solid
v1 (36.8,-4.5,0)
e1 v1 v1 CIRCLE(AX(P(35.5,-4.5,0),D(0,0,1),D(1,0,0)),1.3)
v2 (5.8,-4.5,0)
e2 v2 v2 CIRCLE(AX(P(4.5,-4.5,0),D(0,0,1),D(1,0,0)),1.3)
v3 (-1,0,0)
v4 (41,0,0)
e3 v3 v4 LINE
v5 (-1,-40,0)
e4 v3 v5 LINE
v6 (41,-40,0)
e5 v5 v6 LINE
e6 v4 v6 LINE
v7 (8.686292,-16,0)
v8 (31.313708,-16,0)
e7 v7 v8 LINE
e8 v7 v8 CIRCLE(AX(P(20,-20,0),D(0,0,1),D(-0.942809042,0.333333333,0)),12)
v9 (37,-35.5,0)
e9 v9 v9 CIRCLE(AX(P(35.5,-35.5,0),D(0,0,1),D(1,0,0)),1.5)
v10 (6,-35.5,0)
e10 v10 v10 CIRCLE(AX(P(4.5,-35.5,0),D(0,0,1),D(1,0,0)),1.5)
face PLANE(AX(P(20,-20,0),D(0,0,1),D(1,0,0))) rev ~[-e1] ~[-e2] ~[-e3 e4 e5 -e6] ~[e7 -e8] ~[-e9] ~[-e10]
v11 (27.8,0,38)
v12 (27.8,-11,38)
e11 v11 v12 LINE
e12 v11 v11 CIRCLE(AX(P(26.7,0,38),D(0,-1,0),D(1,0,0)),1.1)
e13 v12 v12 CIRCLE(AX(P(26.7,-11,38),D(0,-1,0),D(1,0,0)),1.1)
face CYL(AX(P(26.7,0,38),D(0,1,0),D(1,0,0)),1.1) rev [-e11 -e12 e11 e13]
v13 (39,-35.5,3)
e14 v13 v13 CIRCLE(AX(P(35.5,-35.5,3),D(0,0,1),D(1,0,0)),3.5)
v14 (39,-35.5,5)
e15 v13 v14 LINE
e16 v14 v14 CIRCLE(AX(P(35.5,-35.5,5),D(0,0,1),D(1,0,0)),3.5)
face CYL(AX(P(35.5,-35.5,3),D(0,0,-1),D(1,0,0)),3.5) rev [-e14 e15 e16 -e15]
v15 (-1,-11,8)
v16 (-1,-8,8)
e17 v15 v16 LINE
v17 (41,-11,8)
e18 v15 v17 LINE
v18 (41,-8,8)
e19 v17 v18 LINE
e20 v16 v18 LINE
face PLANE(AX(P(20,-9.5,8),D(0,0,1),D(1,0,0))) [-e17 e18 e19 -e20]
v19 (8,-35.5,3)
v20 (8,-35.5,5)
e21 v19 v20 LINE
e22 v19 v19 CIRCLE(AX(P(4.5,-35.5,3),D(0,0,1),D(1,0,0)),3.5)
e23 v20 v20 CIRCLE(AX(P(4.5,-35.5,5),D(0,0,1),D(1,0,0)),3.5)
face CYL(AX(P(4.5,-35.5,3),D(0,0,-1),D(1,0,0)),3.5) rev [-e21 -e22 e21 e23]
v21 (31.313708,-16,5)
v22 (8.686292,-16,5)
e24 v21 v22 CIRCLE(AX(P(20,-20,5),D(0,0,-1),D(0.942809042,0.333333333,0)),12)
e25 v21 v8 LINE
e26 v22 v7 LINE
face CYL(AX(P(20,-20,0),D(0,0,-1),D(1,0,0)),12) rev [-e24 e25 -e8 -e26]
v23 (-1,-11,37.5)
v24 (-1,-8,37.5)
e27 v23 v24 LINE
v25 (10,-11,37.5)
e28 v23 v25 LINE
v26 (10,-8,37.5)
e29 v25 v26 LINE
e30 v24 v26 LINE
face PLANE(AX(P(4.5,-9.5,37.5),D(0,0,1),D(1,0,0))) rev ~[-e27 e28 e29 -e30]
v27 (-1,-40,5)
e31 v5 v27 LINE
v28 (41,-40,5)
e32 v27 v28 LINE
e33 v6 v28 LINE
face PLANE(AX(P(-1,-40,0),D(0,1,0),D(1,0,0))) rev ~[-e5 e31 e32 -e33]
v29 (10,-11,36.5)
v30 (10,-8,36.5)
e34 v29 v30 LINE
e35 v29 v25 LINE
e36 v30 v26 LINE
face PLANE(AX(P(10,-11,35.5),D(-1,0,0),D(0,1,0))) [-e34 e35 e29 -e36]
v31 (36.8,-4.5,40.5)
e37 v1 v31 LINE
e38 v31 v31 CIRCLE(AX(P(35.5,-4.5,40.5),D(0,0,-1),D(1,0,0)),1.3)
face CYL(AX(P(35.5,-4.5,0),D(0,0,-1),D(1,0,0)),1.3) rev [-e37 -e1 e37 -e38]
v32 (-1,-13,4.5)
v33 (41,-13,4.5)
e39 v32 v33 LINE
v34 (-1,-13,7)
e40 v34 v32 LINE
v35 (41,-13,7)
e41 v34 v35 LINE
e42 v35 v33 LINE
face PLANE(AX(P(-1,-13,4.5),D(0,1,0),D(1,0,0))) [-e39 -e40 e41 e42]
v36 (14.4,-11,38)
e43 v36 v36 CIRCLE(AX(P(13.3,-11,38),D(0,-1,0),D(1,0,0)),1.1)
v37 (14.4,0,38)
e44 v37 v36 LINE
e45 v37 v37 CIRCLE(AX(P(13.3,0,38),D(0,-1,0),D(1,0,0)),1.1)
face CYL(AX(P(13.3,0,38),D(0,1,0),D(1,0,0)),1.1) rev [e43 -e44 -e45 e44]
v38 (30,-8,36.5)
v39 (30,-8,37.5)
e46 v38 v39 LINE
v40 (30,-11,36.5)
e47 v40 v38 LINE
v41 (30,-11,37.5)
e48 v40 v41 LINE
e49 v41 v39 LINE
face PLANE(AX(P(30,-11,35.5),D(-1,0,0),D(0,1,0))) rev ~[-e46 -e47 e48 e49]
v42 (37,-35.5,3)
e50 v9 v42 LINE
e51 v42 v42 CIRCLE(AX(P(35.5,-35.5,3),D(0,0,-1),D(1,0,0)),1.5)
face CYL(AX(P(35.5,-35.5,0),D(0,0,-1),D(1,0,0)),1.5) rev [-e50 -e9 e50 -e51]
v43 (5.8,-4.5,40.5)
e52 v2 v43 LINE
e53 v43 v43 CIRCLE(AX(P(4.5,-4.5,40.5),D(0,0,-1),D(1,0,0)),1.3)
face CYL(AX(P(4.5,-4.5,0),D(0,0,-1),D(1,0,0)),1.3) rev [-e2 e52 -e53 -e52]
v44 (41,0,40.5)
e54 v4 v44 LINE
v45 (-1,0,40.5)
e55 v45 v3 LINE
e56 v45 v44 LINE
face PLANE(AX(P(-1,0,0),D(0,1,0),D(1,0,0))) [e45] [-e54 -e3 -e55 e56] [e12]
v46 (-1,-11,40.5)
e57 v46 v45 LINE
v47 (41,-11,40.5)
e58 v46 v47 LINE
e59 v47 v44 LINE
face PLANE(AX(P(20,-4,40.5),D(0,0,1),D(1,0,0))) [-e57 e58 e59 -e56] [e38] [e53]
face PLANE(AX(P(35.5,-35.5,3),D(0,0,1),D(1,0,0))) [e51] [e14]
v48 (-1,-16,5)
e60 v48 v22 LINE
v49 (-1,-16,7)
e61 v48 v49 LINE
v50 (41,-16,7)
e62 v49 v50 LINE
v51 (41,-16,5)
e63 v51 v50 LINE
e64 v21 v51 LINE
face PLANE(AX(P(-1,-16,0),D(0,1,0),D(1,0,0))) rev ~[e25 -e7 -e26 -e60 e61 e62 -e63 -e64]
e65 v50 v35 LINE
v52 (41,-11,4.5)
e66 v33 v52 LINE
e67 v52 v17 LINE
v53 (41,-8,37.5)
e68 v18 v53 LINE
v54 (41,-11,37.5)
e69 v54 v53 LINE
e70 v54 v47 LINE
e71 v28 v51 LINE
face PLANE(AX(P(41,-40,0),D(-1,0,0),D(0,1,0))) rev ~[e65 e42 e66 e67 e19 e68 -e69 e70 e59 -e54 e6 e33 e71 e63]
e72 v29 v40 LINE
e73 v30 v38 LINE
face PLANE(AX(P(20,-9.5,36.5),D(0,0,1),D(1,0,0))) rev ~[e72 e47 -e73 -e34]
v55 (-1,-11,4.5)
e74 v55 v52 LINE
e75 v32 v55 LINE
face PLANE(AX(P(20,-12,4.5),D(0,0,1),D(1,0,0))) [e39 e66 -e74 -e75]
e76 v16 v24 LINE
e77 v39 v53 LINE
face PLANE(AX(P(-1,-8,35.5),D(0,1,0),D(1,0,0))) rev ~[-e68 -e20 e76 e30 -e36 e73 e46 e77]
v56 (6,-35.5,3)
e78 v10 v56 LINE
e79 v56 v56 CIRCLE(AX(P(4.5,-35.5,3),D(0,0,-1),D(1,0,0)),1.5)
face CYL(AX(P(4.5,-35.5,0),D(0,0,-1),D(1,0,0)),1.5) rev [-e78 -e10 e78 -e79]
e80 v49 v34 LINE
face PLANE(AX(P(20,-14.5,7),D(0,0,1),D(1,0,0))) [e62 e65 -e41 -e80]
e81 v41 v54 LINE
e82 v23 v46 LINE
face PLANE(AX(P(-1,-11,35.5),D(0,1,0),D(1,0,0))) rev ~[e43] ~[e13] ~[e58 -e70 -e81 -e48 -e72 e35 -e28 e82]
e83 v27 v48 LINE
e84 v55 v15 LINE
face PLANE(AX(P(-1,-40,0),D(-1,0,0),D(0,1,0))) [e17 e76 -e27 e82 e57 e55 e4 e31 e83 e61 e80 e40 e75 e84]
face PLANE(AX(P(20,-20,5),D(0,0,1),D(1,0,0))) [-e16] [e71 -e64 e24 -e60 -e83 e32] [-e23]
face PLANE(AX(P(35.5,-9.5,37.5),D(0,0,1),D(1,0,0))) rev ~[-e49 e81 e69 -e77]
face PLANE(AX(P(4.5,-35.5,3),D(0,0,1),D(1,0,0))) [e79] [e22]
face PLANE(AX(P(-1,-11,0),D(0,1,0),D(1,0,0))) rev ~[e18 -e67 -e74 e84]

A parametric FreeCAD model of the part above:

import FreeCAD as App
import Part
import Sketcher

V = App.Vector
Q = App.Units.Quantity


def add_polygon(sketch, points):
    """Adds a closed chain of lines whose ends are joined by coincident constraints."""
    first, n = sketch.GeometryCount, len(points)
    for a, b in zip(points, points[1:] + points[:1]):
        sketch.addGeometry(Part.LineSegment(App.Vector(*a, 0), App.Vector(*b, 0)), False)
    for i in range(n):
        sketch.addConstraint(Sketcher.Constraint("Coincident", first + i, 2, first + (i + 1) % n, 1))

doc = App.newDocument("Part")
body = doc.addObject("PartDesign::Body", "Body")

sketch1 = body.newObject("Sketcher::SketchObject", "Sketch")
sketch1.AttachmentSupport = (doc.getObject("XY_Plane"), [""])
sketch1.MapMode = "FlatFace"
sketch1.addGeometry(Part.Circle(V(35.5, -4.5, 0), V(0, 0, 1), 1.3), False)
sketch1.addConstraint(Sketcher.Constraint("Diameter", 0, Q("2.6 mm")))
sketch1.addConstraint(Sketcher.Constraint("DistanceX", -1, 1, 0, 3, Q("35.5 mm")))
sketch1.addConstraint(Sketcher.Constraint("DistanceY", 0, 3, -1, 1, Q("4.5 mm")))
pad1 = body.newObject("PartDesign::Pad", "Pad")
pad1.Profile = sketch1
pad1.Length = 50
body2 = doc.addObject("PartDesign::Body", "Body001")

sketch2 = body2.newObject("Sketcher::SketchObject", "Sketch001")
sketch2.AttachmentSupport = (doc.getObject("XZ_Plane001"), [""])
sketch2.MapMode = "FlatFace"
sketch2.addGeometry(Part.Circle(V(13.3, 38, 0), V(0, 0, 1), 1.1), False)
sketch2.addConstraint(Sketcher.Constraint("Diameter", 0, Q("2.2 mm")))
sketch2.addConstraint(Sketcher.Constraint("DistanceY", -1, 1, 0, 3, Q("38 mm")))
sketch2.addConstraint(Sketcher.Constraint("DistanceX", -1, 1, 0, 3, Q("13.3 mm")))
pad2 = body2.newObject("PartDesign::Pad", "Pad001")
pad2.Profile = sketch2
pad2.Length = 11
body3 = doc.addObject("PartDesign::Body", "Body002")

sketch3 = body3.newObject("Sketcher::SketchObject", "Sketch002")
sketch3.AttachmentSupport = (doc.getObject("XZ_Plane002"), [""])
sketch3.MapMode = "FlatFace"
sketch3.addGeometry(Part.Circle(V(26.7, 38, 0), V(0, 0, 1), 1.1), False)
sketch3.addConstraint(Sketcher.Constraint("Diameter", 0, Q("2.2 mm")))
sketch3.addConstraint(Sketcher.Constraint("DistanceY", -1, 1, 0, 3, Q("38 mm")))
sketch3.addConstraint(Sketcher.Constraint("DistanceX", -1, 1, 0, 3, Q("26.7 mm")))
pad3 = body3.newObject("PartDesign::Pad", "Pad002")
pad3.Profile = sketch3
pad3.Length = 11
body4 = doc.addObject("PartDesign::Body", "Body003")

sketch4 = body4.newObject("Sketcher::SketchObject", "Sketch003")
sketch4.AttachmentSupport = (doc.getObject("XY_Plane003"), [""])
sketch4.MapMode = "FlatFace"
sketch4.AttachmentOffset = App.Placement(V(0, 0, 3), App.Rotation())
sketch4.addGeometry(Part.Circle(V(4.5, -35.5, 0), V(0, 0, 1), 3.5), False)
sketch4.addConstraint(Sketcher.Constraint("Diameter", 0, Q("7 mm")))
sketch4.addConstraint(Sketcher.Constraint("DistanceX", -1, 1, 0, 3, Q("4.5 mm")))
sketch4.addConstraint(Sketcher.Constraint("DistanceY", 0, 3, -1, 1, Q("35.5 mm")))
pad4 = body4.newObject("PartDesign::Pad", "Pad003")
pad4.Profile = sketch4
pad4.Length = 2
body5 = doc.addObject("PartDesign::Body", "Body004")

sketch5 = body5.newObject("Sketcher::SketchObject", "Sketch004")
sketch5.AttachmentSupport = (doc.getObject("XY_Plane004"), [""])
sketch5.MapMode = "FlatFace"
sketch5.AttachmentOffset = App.Placement(V(0, 0, 3), App.Rotation())
sketch5.addGeometry(Part.Circle(V(35.5, -35.5, 0), V(0, 0, 1), 3.5), False)
sketch5.addConstraint(Sketcher.Constraint("Diameter", 0, Q("7 mm")))
sketch5.addConstraint(Sketcher.Constraint("DistanceX", -1, 1, 0, 3, Q("35.5 mm")))
sketch5.addConstraint(Sketcher.Constraint("DistanceY", 0, 3, -1, 1, Q("35.5 mm")))
pad5 = body5.newObject("PartDesign::Pad", "Pad004")
pad5.Profile = sketch5
pad5.Length = 2
body6 = doc.addObject("PartDesign::Body", "Body005")

sketch6 = body6.newObject("Sketcher::SketchObject", "Sketch005")
sketch6.AttachmentSupport = (doc.getObject("XY_Plane005"), [""])
sketch6.MapMode = "FlatFace"
sketch6.addGeometry(Part.Circle(V(35.5, -35.5, 0), V(0, 0, 1), 1.5), False)
sketch6.addConstraint(Sketcher.Constraint("Diameter", 0, Q("3 mm")))
sketch6.addConstraint(Sketcher.Constraint("DistanceX", -1, 1, 0, 3, Q("35.5 mm")))
sketch6.addConstraint(Sketcher.Constraint("DistanceY", 0, 3, -1, 1, Q("35.5 mm")))
pad6 = body6.newObject("PartDesign::Pad", "Pad005")
pad6.Profile = sketch6
pad6.Length = 5
body7 = doc.addObject("PartDesign::Body", "Body006")

sketch7 = body7.newObject("Sketcher::SketchObject", "Sketch006")
sketch7.AttachmentSupport = (doc.getObject("XY_Plane006"), [""])
sketch7.MapMode = "FlatFace"
sketch7.addGeometry(Part.Circle(V(4.5, -35.5, 0), V(0, 0, 1), 1.5), False)
sketch7.addConstraint(Sketcher.Constraint("Diameter", 0, Q("3 mm")))
sketch7.addConstraint(Sketcher.Constraint("DistanceX", -1, 1, 0, 3, Q("4.5 mm")))
sketch7.addConstraint(Sketcher.Constraint("DistanceY", 0, 3, -1, 1, Q("35.5 mm")))
pad7 = body7.newObject("PartDesign::Pad", "Pad006")
pad7.Profile = sketch7
pad7.Length = 5
body8 = doc.addObject("PartDesign::Body", "Body007")
body8.AllowCompound = True

sketch8 = body8.newObject("Sketcher::SketchObject", "Sketch007")
sketch8.AttachmentSupport = (doc.getObject("XY_Plane007"), [""])
sketch8.MapMode = "FlatFace"
sketch8.addGeometry(Part.Circle(V(4.5, -4.5, 0), V(0, 0, 1), 1.3), False)
sketch8.addConstraint(Sketcher.Constraint("Diameter", 0, Q("2.6 mm")))
sketch8.addConstraint(Sketcher.Constraint("DistanceX", -1, 1, 0, 3, Q("4.5 mm")))
sketch8.addConstraint(Sketcher.Constraint("DistanceY", 0, 3, -1, 1, Q("4.5 mm")))
pad8 = body8.newObject("PartDesign::Pad", "Pad007")
pad8.Profile = sketch8
pad8.Length = 50
doc.recompute()

boolean = body8.newObject("PartDesign::Boolean", "Boolean")
boolean.Type = "Fuse"
boolean.addObjects([body])
doc.recompute()

boolean2 = body8.newObject("PartDesign::Boolean", "Boolean001")
boolean2.Type = "Fuse"
boolean2.addObjects([body2])
doc.recompute()

boolean3 = body8.newObject("PartDesign::Boolean", "Boolean002")
boolean3.Type = "Fuse"
boolean3.addObjects([body3])
doc.recompute()

boolean4 = body8.newObject("PartDesign::Boolean", "Boolean003")
boolean4.Type = "Fuse"
boolean4.addObjects([body4])
doc.recompute()

boolean5 = body8.newObject("PartDesign::Boolean", "Boolean004")
boolean5.Type = "Fuse"
boolean5.addObjects([body5])
doc.recompute()

boolean6 = body8.newObject("PartDesign::Boolean", "Boolean005")
boolean6.Type = "Fuse"
boolean6.addObjects([body6])
doc.recompute()

boolean7 = body8.newObject("PartDesign::Boolean", "Boolean006")
boolean7.Type = "Fuse"
boolean7.addObjects([body7])
body9 = doc.addObject("PartDesign::Body", "Body008")

sketch9 = body9.newObject("Sketcher::SketchObject", "Sketch008")
sketch9.AttachmentSupport = (doc.getObject("XY_Plane008"), [""])
sketch9.MapMode = "FlatFace"
sketch9.AttachmentOffset = App.Placement(V(0, 0, 35.5), App.Rotation())
add_polygon(sketch9, [(10, -8), (10, -11), (30, -11), (30, -8)])
sketch9.addConstraint(Sketcher.Constraint("Vertical", 0))
sketch9.addConstraint(Sketcher.Constraint("Horizontal", 1))
sketch9.addConstraint(Sketcher.Constraint("Vertical", 2))
sketch9.addConstraint(Sketcher.Constraint("Horizontal", 3))
sketch9.addConstraint(Sketcher.Constraint("DistanceX", 1, 1, 1, 2, Q("20 mm")))
sketch9.addConstraint(Sketcher.Constraint("DistanceY", 0, 2, 0, 1, Q("3 mm")))
sketch9.addConstraint(Sketcher.Constraint("DistanceX", -1, 1, 0, 2, Q("10 mm")))
sketch9.addConstraint(Sketcher.Constraint("DistanceY", 0, 2, -1, 1, Q("11 mm")))
pad9 = body9.newObject("PartDesign::Pad", "Pad008")
pad9.Profile = sketch9
pad9.Length = 1
body10 = doc.addObject("PartDesign::Body", "Body009")

sketch10 = body10.newObject("Sketcher::SketchObject", "Sketch009")
sketch10.AttachmentSupport = (doc.getObject("XY_Plane009"), [""])
sketch10.MapMode = "FlatFace"
sketch10.AttachmentOffset = App.Placement(V(0, 0, 35.5), App.Rotation())
add_polygon(sketch10, [(30, -8), (30, -11), (41, -11), (41, -8)])
sketch10.addConstraint(Sketcher.Constraint("Vertical", 0))
sketch10.addConstraint(Sketcher.Constraint("Horizontal", 1))
sketch10.addConstraint(Sketcher.Constraint("Vertical", 2))
sketch10.addConstraint(Sketcher.Constraint("Horizontal", 3))
sketch10.addConstraint(Sketcher.Constraint("DistanceX", 1, 1, 1, 2, Q("11 mm")))
sketch10.addConstraint(Sketcher.Constraint("DistanceY", 0, 2, 0, 1, Q("3 mm")))
sketch10.addConstraint(Sketcher.Constraint("DistanceX", -1, 1, 0, 2, Q("30 mm")))
sketch10.addConstraint(Sketcher.Constraint("DistanceY", 0, 2, -1, 1, Q("11 mm")))
pad10 = body10.newObject("PartDesign::Pad", "Pad009")
pad10.Profile = sketch10
pad10.Length = 2
body11 = doc.addObject("PartDesign::Body", "Body010")

sketch11 = body11.newObject("Sketcher::SketchObject", "Sketch010")
sketch11.AttachmentSupport = (doc.getObject("XY_Plane010"), [""])
sketch11.MapMode = "FlatFace"
sketch11.AttachmentOffset = App.Placement(V(0, 0, 35.5), App.Rotation())
add_polygon(sketch11, [(-1, -8), (-1, -11), (10, -11), (10, -8)])
sketch11.addConstraint(Sketcher.Constraint("Vertical", 0))
sketch11.addConstraint(Sketcher.Constraint("Horizontal", 1))
sketch11.addConstraint(Sketcher.Constraint("Vertical", 2))
sketch11.addConstraint(Sketcher.Constraint("Horizontal", 3))
sketch11.addConstraint(Sketcher.Constraint("DistanceX", 1, 1, 1, 2, Q("11 mm")))
sketch11.addConstraint(Sketcher.Constraint("DistanceY", 0, 2, 0, 1, Q("3 mm")))
sketch11.addConstraint(Sketcher.Constraint("DistanceX", 0, 2, -1, 1, Q("1 mm")))
sketch11.addConstraint(Sketcher.Constraint("DistanceY", 0, 2, -1, 1, Q("11 mm")))
pad11 = body11.newObject("PartDesign::Pad", "Pad010")
pad11.Profile = sketch11
pad11.Length = 2
body12 = doc.addObject("PartDesign::Body", "Body011")
body12.AllowCompound = True

sketch12 = body12.newObject("Sketcher::SketchObject", "Sketch011")
sketch12.AttachmentSupport = (doc.getObject("XY_Plane011"), [""])
sketch12.MapMode = "FlatFace"
sketch12.AttachmentOffset = App.Placement(V(0, 0, 4.5), App.Rotation())
add_polygon(sketch12, [(-1, -11), (-1, -13), (41, -13), (41, -11)])
sketch12.addConstraint(Sketcher.Constraint("Vertical", 0))
sketch12.addConstraint(Sketcher.Constraint("Horizontal", 1))
sketch12.addConstraint(Sketcher.Constraint("Vertical", 2))
sketch12.addConstraint(Sketcher.Constraint("Horizontal", 3))
sketch12.addConstraint(Sketcher.Constraint("DistanceX", 1, 1, 1, 2, Q("42 mm")))
sketch12.addConstraint(Sketcher.Constraint("DistanceY", 0, 2, 0, 1, Q("2 mm")))
sketch12.addConstraint(Sketcher.Constraint("DistanceX", 0, 2, -1, 1, Q("1 mm")))
sketch12.addConstraint(Sketcher.Constraint("DistanceY", 0, 2, -1, 1, Q("13 mm")))
pad12 = body12.newObject("PartDesign::Pad", "Pad011")
pad12.Profile = sketch12
pad12.Length = 2
doc.recompute()

boolean8 = body12.newObject("PartDesign::Boolean", "Boolean007")
boolean8.Type = "Fuse"
boolean8.addObjects([body9])
doc.recompute()

boolean9 = body12.newObject("PartDesign::Boolean", "Boolean008")
boolean9.Type = "Fuse"
boolean9.addObjects([body10])
doc.recompute()

boolean10 = body12.newObject("PartDesign::Boolean", "Boolean009")
boolean10.Type = "Fuse"
boolean10.addObjects([body11])
body13 = doc.addObject("PartDesign::Body", "Body012")

sketch13 = body13.newObject("Sketcher::SketchObject", "Sketch012")
sketch13.AttachmentSupport = (doc.getObject("XY_Plane012"), [""])
sketch13.MapMode = "FlatFace"
add_polygon(sketch13, [(-1, 0), (-1, -16), (41, -16), (41, 0)])
sketch13.addConstraint(Sketcher.Constraint("Vertical", 0))
sketch13.addConstraint(Sketcher.Constraint("Horizontal", 1))
sketch13.addConstraint(Sketcher.Constraint("Vertical", 2))
sketch13.addConstraint(Sketcher.Constraint("Horizontal", 3))
sketch13.addConstraint(Sketcher.Constraint("PointOnObject", 2, 2, -1))
sketch13.addConstraint(Sketcher.Constraint("DistanceX", 1, 1, 1, 2, Q("42 mm")))
sketch13.addConstraint(Sketcher.Constraint("DistanceY", 0, 2, 0, 1, Q("16 mm")))
sketch13.addConstraint(Sketcher.Constraint("DistanceX", 0, 2, -1, 1, Q("1 mm")))
pad13 = body13.newObject("PartDesign::Pad", "Pad012")
pad13.Profile = sketch13
pad13.Length = 5
body14 = doc.addObject("PartDesign::Body", "Body013")

sketch14 = body14.newObject("Sketcher::SketchObject", "Sketch013")
sketch14.AttachmentSupport = (doc.getObject("XY_Plane013"), [""])
sketch14.MapMode = "FlatFace"
sketch14.addGeometry(Part.Circle(V(20, -20, 0), V(0, 0, 1), 12), False)
sketch14.addConstraint(Sketcher.Constraint("Diameter", 0, Q("24 mm")))
sketch14.addConstraint(Sketcher.Constraint("DistanceX", -1, 1, 0, 3, Q("20 mm")))
sketch14.addConstraint(Sketcher.Constraint("DistanceY", 0, 3, -1, 1, Q("20 mm")))
pad14 = body14.newObject("PartDesign::Pad", "Pad013")
pad14.Profile = sketch14
pad14.Length = 5
doc.recompute()

boolean11 = body14.newObject("PartDesign::Boolean", "Boolean010")
boolean11.Type = "Cut"
boolean11.addObjects([body13])
body15 = doc.addObject("PartDesign::Body", "Body014")

sketch15 = body15.newObject("Sketcher::SketchObject", "Sketch014")
sketch15.AttachmentSupport = (doc.getObject("XY_Plane014"), [""])
sketch15.MapMode = "FlatFace"
add_polygon(sketch15, [(-1, 0), (-1, -8), (41, -8), (41, 0)])
sketch15.addConstraint(Sketcher.Constraint("Vertical", 0))
sketch15.addConstraint(Sketcher.Constraint("Horizontal", 1))
sketch15.addConstraint(Sketcher.Constraint("Vertical", 2))
sketch15.addConstraint(Sketcher.Constraint("Horizontal", 3))
sketch15.addConstraint(Sketcher.Constraint("PointOnObject", 2, 2, -1))
sketch15.addConstraint(Sketcher.Constraint("DistanceX", 1, 1, 1, 2, Q("42 mm")))
sketch15.addConstraint(Sketcher.Constraint("DistanceY", 0, 2, 0, 1, Q("8 mm")))
sketch15.addConstraint(Sketcher.Constraint("DistanceX", 0, 2, -1, 1, Q("1 mm")))
pad15 = body15.newObject("PartDesign::Pad", "Pad014")
pad15.Profile = sketch15
pad15.Length = 40.5
body16 = doc.addObject("PartDesign::Body", "Body015")

sketch16 = body16.newObject("Sketcher::SketchObject", "Sketch015")
sketch16.AttachmentSupport = (doc.getObject("XY_Plane015"), [""])
sketch16.MapMode = "FlatFace"
add_polygon(sketch16, [(-1, -13), (-1, -16), (41, -16), (41, -13)])
sketch16.addConstraint(Sketcher.Constraint("Vertical", 0))
sketch16.addConstraint(Sketcher.Constraint("Horizontal", 1))
sketch16.addConstraint(Sketcher.Constraint("Vertical", 2))
sketch16.addConstraint(Sketcher.Constraint("Horizontal", 3))
sketch16.addConstraint(Sketcher.Constraint("DistanceX", 1, 1, 1, 2, Q("42 mm")))
sketch16.addConstraint(Sketcher.Constraint("DistanceY", 0, 2, 0, 1, Q("3 mm")))
sketch16.addConstraint(Sketcher.Constraint("DistanceX", 0, 2, -1, 1, Q("1 mm")))
sketch16.addConstraint(Sketcher.Constraint("DistanceY", 0, 2, -1, 1, Q("16 mm")))
pad16 = body16.newObject("PartDesign::Pad", "Pad015")
pad16.Profile = sketch16
pad16.Length = 7
body17 = doc.addObject("PartDesign::Body", "Body016")

sketch17 = body17.newObject("Sketcher::SketchObject", "Sketch016")
sketch17.AttachmentSupport = (doc.getObject("XY_Plane016"), [""])
sketch17.MapMode = "FlatFace"
add_polygon(sketch17, [(-1, -8), (-1, -11), (41, -11), (41, -8)])
sketch17.addConstraint(Sketcher.Constraint("Vertical", 0))
sketch17.addConstraint(Sketcher.Constraint("Horizontal", 1))
sketch17.addConstraint(Sketcher.Constraint("Vertical", 2))
sketch17.addConstraint(Sketcher.Constraint("Horizontal", 3))
sketch17.addConstraint(Sketcher.Constraint("DistanceX", 1, 1, 1, 2, Q("42 mm")))
sketch17.addConstraint(Sketcher.Constraint("DistanceY", 0, 2, 0, 1, Q("3 mm")))
sketch17.addConstraint(Sketcher.Constraint("DistanceX", 0, 2, -1, 1, Q("1 mm")))
sketch17.addConstraint(Sketcher.Constraint("DistanceY", 0, 2, -1, 1, Q("11 mm")))
pad17 = body17.newObject("PartDesign::Pad", "Pad016")
pad17.Profile = sketch17
pad17.Length = 8
body18 = doc.addObject("PartDesign::Body", "Body017")

sketch18 = body18.newObject("Sketcher::SketchObject", "Sketch017")
sketch18.AttachmentSupport = (doc.getObject("XY_Plane017"), [""])
sketch18.MapMode = "FlatFace"
add_polygon(sketch18, [(-1, 0), (-1, -40), (41, -40), (41, 0)])
sketch18.addConstraint(Sketcher.Constraint("Vertical", 0))
sketch18.addConstraint(Sketcher.Constraint("Horizontal", 1))
sketch18.addConstraint(Sketcher.Constraint("Vertical", 2))
sketch18.addConstraint(Sketcher.Constraint("Horizontal", 3))
sketch18.addConstraint(Sketcher.Constraint("PointOnObject", 2, 2, -1))
sketch18.addConstraint(Sketcher.Constraint("DistanceX", 1, 1, 1, 2, Q("42 mm")))
sketch18.addConstraint(Sketcher.Constraint("DistanceY", 0, 2, 0, 1, Q("40 mm")))
sketch18.addConstraint(Sketcher.Constraint("DistanceX", 0, 2, -1, 1, Q("1 mm")))
pad18 = body18.newObject("PartDesign::Pad", "Pad017")
pad18.Profile = sketch18
pad18.Length = 5
body19 = doc.addObject("PartDesign::Body", "Body018")
body19.AllowCompound = True

sketch19 = body19.newObject("Sketcher::SketchObject", "Sketch018")
sketch19.AttachmentSupport = (doc.getObject("XY_Plane018"), [""])
sketch19.MapMode = "FlatFace"
sketch19.AttachmentOffset = App.Placement(V(0, 0, 35.5), App.Rotation())
add_polygon(sketch19, [(-1, -8), (-1, -11), (41, -11), (41, -8)])
sketch19.addConstraint(Sketcher.Constraint("Vertical", 0))
sketch19.addConstraint(Sketcher.Constraint("Horizontal", 1))
sketch19.addConstraint(Sketcher.Constraint("Vertical", 2))
sketch19.addConstraint(Sketcher.Constraint("Horizontal", 3))
sketch19.addConstraint(Sketcher.Constraint("DistanceX", 1, 1, 1, 2, Q("42 mm")))
sketch19.addConstraint(Sketcher.Constraint("DistanceY", 0, 2, 0, 1, Q("3 mm")))
sketch19.addConstraint(Sketcher.Constraint("DistanceX", 0, 2, -1, 1, Q("1 mm")))
sketch19.addConstraint(Sketcher.Constraint("DistanceY", 0, 2, -1, 1, Q("11 mm")))
pad19 = body19.newObject("PartDesign::Pad", "Pad018")
pad19.Profile = sketch19
pad19.Length = 5
doc.recompute()

boolean12 = body19.newObject("PartDesign::Boolean", "Boolean011")
boolean12.Type = "Fuse"
boolean12.addObjects([body15])
doc.recompute()

boolean13 = body19.newObject("PartDesign::Boolean", "Boolean012")
boolean13.Type = "Fuse"
boolean13.addObjects([body16])
doc.recompute()

boolean14 = body19.newObject("PartDesign::Boolean", "Boolean013")
boolean14.Type = "Fuse"
boolean14.addObjects([body17])
doc.recompute()

boolean15 = body19.newObject("PartDesign::Boolean", "Boolean014")
boolean15.Type = "Fuse"
boolean15.addObjects([body18])
doc.recompute()

boolean16 = body19.newObject("PartDesign::Boolean", "Boolean015")
boolean16.Type = "Cut"
boolean16.addObjects([body14])
doc.recompute()

boolean17 = body19.newObject("PartDesign::Boolean", "Boolean016")
boolean17.Type = "Cut"
boolean17.addObjects([body12])
doc.recompute()

boolean18 = body19.newObject("PartDesign::Boolean", "Boolean017")
boolean18.Type = "Cut"
boolean18.addObjects([body8])

doc.recompute()
